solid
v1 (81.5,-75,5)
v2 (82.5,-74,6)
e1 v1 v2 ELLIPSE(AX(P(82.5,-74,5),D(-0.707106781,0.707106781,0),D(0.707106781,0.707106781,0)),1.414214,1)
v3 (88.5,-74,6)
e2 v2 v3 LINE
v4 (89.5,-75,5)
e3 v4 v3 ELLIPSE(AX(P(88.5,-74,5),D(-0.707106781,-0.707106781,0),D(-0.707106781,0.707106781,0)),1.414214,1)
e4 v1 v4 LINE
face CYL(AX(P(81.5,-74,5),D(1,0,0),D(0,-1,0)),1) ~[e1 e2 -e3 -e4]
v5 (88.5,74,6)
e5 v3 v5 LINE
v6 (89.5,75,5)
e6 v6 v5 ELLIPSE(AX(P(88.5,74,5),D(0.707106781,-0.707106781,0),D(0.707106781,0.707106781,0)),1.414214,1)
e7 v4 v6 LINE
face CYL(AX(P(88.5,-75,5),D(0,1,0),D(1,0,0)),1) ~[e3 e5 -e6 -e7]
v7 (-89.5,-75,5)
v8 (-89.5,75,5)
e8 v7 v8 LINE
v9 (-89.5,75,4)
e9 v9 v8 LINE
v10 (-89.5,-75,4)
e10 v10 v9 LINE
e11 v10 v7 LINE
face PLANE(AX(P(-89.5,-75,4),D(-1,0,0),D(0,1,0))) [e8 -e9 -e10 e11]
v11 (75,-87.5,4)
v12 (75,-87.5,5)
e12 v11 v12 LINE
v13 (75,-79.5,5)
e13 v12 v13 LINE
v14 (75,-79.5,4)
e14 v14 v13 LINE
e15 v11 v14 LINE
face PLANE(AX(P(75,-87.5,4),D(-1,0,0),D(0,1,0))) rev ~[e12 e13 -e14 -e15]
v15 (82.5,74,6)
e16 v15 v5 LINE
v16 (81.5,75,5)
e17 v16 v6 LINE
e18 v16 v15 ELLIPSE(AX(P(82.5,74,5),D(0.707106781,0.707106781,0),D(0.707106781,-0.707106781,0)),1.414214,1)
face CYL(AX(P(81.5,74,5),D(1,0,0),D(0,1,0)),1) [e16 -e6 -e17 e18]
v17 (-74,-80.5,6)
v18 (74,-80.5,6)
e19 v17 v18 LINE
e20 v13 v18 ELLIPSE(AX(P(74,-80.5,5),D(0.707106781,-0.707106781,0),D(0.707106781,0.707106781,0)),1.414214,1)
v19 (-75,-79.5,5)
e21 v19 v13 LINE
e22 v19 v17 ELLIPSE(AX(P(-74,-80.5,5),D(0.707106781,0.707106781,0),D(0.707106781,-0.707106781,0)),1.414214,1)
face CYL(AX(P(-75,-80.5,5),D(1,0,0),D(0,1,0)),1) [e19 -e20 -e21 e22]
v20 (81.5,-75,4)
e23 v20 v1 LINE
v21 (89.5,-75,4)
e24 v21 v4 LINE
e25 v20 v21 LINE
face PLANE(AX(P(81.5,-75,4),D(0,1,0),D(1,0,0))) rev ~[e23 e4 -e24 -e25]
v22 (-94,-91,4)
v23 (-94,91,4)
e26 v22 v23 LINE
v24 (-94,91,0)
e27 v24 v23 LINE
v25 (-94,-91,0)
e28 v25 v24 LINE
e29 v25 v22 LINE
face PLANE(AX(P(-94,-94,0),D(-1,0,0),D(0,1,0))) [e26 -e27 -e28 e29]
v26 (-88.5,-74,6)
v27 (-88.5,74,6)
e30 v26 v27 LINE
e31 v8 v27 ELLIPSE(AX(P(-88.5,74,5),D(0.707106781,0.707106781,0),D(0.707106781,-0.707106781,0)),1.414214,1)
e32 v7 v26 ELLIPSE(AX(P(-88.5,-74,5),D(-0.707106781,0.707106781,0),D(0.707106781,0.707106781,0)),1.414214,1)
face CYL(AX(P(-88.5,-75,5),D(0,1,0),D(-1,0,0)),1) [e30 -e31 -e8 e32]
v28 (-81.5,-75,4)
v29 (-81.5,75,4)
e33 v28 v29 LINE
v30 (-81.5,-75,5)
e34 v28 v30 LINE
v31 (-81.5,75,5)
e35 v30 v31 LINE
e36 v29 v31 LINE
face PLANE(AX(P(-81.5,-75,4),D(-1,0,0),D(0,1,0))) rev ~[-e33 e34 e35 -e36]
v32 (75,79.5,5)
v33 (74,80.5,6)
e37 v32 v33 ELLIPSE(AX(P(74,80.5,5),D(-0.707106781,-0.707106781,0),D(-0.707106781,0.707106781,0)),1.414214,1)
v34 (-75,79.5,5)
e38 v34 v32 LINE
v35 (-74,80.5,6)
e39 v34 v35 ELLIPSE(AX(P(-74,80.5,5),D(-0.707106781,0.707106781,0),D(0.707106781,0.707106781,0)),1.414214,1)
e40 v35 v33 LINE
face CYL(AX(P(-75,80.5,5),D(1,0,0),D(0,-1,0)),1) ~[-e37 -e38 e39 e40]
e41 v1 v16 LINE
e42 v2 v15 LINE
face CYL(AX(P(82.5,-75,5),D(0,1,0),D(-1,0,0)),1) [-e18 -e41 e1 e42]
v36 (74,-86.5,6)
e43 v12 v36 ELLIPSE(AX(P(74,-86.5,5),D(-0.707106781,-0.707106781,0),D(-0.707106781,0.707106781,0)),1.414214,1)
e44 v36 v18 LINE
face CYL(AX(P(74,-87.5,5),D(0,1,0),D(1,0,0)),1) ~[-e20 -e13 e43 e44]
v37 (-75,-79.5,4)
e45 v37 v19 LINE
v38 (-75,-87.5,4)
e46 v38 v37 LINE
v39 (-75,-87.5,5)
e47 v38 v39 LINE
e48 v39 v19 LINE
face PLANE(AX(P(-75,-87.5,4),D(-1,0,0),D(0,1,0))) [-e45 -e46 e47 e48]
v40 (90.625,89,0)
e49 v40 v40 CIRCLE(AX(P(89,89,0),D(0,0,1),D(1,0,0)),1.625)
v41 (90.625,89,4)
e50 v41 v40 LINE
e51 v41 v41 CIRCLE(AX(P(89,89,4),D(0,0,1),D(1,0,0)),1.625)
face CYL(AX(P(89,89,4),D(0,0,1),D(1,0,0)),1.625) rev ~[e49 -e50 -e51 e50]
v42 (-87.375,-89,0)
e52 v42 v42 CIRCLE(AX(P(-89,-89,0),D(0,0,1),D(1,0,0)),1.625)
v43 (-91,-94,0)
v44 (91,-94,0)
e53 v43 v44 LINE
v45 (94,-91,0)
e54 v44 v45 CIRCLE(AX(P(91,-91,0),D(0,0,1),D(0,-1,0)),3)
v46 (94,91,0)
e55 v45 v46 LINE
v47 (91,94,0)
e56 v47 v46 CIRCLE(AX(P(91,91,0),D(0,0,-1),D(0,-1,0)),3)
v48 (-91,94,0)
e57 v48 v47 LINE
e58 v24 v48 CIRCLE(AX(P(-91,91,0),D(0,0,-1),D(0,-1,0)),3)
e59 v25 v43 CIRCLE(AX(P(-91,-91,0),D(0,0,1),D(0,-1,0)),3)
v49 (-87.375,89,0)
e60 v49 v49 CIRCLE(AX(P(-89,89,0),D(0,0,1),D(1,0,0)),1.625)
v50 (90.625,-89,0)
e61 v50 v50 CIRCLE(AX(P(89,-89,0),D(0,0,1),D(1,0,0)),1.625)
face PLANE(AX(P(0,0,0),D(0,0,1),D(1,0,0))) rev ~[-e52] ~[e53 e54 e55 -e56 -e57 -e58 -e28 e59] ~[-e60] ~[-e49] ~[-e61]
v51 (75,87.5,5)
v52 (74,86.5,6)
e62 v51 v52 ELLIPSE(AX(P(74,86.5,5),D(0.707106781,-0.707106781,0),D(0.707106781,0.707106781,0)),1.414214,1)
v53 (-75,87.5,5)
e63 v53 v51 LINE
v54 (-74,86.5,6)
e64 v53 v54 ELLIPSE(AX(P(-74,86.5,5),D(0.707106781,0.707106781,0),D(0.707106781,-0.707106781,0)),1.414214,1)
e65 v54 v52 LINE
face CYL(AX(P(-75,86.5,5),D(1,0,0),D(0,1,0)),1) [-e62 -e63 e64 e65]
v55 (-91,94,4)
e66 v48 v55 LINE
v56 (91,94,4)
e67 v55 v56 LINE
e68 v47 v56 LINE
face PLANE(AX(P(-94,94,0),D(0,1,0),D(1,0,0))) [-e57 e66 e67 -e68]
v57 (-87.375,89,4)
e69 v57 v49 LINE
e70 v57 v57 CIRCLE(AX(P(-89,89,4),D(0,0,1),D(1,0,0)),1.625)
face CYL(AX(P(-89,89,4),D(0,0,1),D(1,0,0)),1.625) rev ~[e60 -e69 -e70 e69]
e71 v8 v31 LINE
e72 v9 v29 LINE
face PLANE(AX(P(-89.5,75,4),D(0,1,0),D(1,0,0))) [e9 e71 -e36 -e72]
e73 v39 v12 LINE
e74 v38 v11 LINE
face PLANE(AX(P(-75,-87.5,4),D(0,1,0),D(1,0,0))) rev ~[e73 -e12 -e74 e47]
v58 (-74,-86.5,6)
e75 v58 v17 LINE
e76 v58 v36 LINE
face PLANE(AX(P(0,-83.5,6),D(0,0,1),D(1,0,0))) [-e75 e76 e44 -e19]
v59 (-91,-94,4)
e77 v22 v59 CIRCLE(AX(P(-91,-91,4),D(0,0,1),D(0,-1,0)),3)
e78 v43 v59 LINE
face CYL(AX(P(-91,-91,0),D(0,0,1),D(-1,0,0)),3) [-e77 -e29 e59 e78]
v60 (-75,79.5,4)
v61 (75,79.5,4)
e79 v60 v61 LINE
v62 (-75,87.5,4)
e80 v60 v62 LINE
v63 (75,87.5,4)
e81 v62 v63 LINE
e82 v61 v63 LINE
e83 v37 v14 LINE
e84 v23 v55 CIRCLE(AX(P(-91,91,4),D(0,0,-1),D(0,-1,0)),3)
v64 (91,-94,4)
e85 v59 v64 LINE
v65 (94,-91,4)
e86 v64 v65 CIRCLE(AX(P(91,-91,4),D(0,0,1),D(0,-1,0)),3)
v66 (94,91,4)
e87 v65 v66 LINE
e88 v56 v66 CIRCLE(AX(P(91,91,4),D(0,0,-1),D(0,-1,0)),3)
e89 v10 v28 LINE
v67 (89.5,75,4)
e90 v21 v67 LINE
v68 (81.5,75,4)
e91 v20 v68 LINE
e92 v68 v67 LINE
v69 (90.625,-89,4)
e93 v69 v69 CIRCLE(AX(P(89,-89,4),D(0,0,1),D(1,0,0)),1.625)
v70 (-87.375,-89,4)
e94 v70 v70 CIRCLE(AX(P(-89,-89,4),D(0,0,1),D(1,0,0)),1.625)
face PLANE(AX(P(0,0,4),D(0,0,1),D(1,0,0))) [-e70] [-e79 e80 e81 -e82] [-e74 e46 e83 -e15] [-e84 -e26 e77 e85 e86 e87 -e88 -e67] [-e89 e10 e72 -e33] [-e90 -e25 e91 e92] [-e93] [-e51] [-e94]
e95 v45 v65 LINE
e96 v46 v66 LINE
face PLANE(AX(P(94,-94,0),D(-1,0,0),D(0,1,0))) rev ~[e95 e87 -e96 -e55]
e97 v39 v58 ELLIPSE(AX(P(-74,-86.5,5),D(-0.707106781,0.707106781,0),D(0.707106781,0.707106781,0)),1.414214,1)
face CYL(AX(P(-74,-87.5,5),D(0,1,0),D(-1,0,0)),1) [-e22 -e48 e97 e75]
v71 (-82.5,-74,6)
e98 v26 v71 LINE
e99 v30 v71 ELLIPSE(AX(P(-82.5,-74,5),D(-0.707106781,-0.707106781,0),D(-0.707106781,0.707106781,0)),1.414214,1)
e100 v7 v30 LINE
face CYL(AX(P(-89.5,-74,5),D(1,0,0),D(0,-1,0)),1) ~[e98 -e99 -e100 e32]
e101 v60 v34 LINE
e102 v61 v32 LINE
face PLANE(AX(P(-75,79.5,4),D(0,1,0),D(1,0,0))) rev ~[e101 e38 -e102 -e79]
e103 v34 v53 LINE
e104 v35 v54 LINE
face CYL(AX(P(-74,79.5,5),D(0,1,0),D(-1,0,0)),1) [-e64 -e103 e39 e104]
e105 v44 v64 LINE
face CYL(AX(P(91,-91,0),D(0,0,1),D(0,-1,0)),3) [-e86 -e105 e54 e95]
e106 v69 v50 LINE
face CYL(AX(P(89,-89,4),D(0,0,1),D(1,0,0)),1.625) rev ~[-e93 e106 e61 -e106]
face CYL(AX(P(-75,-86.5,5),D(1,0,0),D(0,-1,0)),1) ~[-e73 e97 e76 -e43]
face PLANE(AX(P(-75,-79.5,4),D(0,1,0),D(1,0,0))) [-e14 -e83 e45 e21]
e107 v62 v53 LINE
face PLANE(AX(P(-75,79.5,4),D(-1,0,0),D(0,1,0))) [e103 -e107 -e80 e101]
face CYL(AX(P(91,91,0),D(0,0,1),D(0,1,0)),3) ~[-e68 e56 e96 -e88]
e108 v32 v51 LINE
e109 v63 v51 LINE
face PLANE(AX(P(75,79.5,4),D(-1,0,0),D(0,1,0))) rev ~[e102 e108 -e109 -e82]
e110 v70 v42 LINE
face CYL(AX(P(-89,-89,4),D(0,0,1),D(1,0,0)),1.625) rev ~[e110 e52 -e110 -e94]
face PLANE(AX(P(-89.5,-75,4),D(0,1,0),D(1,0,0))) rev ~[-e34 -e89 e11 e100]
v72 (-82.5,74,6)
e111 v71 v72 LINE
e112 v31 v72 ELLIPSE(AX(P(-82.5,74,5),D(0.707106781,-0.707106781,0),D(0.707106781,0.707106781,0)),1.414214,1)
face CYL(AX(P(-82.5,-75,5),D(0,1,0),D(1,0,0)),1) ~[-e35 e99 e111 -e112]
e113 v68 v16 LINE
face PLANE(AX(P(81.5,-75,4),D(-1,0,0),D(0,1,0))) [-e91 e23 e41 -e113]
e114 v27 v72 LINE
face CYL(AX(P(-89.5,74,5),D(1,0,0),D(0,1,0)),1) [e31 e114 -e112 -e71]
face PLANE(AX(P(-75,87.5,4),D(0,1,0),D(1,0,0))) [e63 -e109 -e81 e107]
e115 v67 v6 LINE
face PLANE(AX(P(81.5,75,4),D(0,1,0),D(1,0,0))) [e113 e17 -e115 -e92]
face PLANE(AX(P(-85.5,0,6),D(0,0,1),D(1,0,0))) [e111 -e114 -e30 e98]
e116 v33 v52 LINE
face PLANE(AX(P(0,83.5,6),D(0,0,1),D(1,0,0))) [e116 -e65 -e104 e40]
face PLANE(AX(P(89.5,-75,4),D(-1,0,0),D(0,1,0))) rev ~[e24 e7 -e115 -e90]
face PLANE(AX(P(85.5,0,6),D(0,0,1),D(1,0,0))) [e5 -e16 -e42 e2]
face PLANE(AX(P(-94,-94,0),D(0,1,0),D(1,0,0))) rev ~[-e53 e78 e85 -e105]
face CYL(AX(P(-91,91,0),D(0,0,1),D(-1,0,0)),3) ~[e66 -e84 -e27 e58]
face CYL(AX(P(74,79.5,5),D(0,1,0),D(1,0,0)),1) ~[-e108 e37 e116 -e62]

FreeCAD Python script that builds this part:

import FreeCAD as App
import Part
import Sketcher
Q = App.Units.Quantity


def edges_at(feature, points):
    """Names of the edges that pass closest to the given points."""
    edges = feature.Shape.Edges
    near = lambda p: min(range(len(edges)), key=lambda i: edges[i].distToShape(Part.Vertex(*p))[0])
    return sorted({f"Edge{near(p) + 1}" for p in points})


def add_polygon(sketch, points):
    """Adds a closed chain of lines whose ends are joined by coincident constraints."""
    first, n = sketch.GeometryCount, len(points)
    for a, b in zip(points, points[1:] + points[:1]):
        sketch.addGeometry(Part.LineSegment(App.Vector(*a, 0), App.Vector(*b, 0)), False)
    for i in range(n):
        sketch.addConstraint(Sketcher.Constraint("Coincident", first + i, 2, first + (i + 1) % n, 1))

doc = App.newDocument("Part")
params = doc.addObject("Spreadsheet::Sheet", "Params")
for row, (alias, value) in enumerate([
    ("sketch1_width", "188 mm"),
    ("pad1_length", "4 mm"),
    ("sketch2_diameter", "3.25 mm"),
    ("fillet_radius", "3 mm"),
    ("sketch3_width", "150 mm"),
    ("sketch3_width2", "8 mm"),
    ("pad2_length", "2 mm"),
    ("fillet2_radius", "1 mm"),
], start=1):
    params.set(f"A{row}", alias)
    params.set(f"B{row}", "=" + value)
    params.setAlias(f"B{row}", alias)

body = doc.addObject("PartDesign::Body", "Body")

# Sketch on XY plane
sketch1 = body.newObject("Sketcher::SketchObject", "Sketch")
sketch1.AttachmentSupport = (doc.getObject("XY_Plane"), [""])
sketch1.MapMode = "FlatFace"
add_polygon(sketch1, [(-94, 94), (-94, -94), (94, -94), (94, 94)])  # lines 0-3
sketch1.addConstraint([
    Sketcher.Constraint("Vertical", 0),
    Sketcher.Constraint("Horizontal", 1),
    Sketcher.Constraint("Vertical", 2),
    Sketcher.Constraint("Horizontal", 3),
    Sketcher.Constraint("Symmetric", 0, 2, 2, 2, -1, 1),
    Sketcher.Constraint("Equal", 3, 0),
    Sketcher.Constraint("DistanceX", 1, 1, 1, 2, Q("188 mm")),
])
sketch1.setExpression("Constraints[10]", "Params.sketch1_width")
pad1 = body.newObject("PartDesign::Pad", "Pad")
pad1.Profile = sketch1
pad1.setExpression("Length", "Params.pad1_length")

# Sketch on XY plane
sketch2 = body.newObject("Sketcher::SketchObject", "Sketch001")
sketch2.AttachmentSupport = (doc.getObject("XY_Plane"), [""])
sketch2.MapMode = "FlatFace"
sketch2.AttachmentOffset = App.Placement(App.Vector(0, 0, 4), App.Rotation())
sketch2.addGeometry([
    Part.Circle(App.Vector(-89, 89, 0), App.Vector(0, 0, 1), 1.6),
    Part.Circle(App.Vector(89, 89, 0), App.Vector(0, 0, 1), 1.6),
    Part.Circle(App.Vector(89, -89, 0), App.Vector(0, 0, 1), 1.6),
    Part.Circle(App.Vector(-89, -89, 0), App.Vector(0, 0, 1), 1.6),
], False)
sketch2.addConstraint([
    Sketcher.Constraint("Equal", 0, 1),
    Sketcher.Constraint("Equal", 1, 2),
    Sketcher.Constraint("Equal", 2, 3),
    Sketcher.Constraint("Symmetric", 0, 3, 2, 3, -1, 1),
    Sketcher.Constraint("Symmetric", 1, 3, 3, 3, -1, 1),
    Sketcher.Constraint("Symmetric", 0, 3, 1, 3, -2),
    Sketcher.Constraint("Diameter", 0, Q("3.25 mm")),
    Sketcher.Constraint("DistanceX", 0, 3, -1, 1, Q("89 mm")),
    Sketcher.Constraint("DistanceY", -1, 1, 0, 3, Q("89 mm")),
])
sketch2.setExpression("Constraints[6]", "Params.sketch2_diameter")
pocket1 = body.newObject("PartDesign::Pocket", "Pocket")
pocket1.Profile = sketch2
pocket1.Type = "ThroughAll"
doc.recompute()

fillet = body.newObject("PartDesign::Fillet", "Fillet")
fillet.Base = (pocket1, edges_at(pocket1, [
    (-94, 94, 2),
    (94, 94, 2),
    (-94, -94, 2),
    (94, -94, 2),
]))
fillet.setExpression("Radius", "Params.fillet_radius")

# Sketch on XY plane
sketch3 = body.newObject("Sketcher::SketchObject", "Sketch002")
sketch3.AttachmentSupport = (doc.getObject("XY_Plane"), [""])
sketch3.MapMode = "FlatFace"
sketch3.AttachmentOffset = App.Placement(App.Vector(0, 0, 4), App.Rotation())
add_polygon(sketch3, [(-75, -80), (-75, -88), (75, -88), (75, -80)])  # lines 0-3
add_polygon(sketch3, [(-75, 88), (-75, 80), (75, 80), (75, 88)])  # lines 4-7
add_polygon(sketch3, [(-90, 75), (-90, -75), (-82, -75), (-82, 75)])  # lines 8-11
add_polygon(sketch3, [(82, 75), (82, -75), (90, -75), (90, 75)])  # lines 12-15
sketch3.addConstraint([
    Sketcher.Constraint("Vertical", 0),
    Sketcher.Constraint("Horizontal", 1),
    Sketcher.Constraint("Vertical", 2),
    Sketcher.Constraint("Horizontal", 3),
    Sketcher.Constraint("Vertical", 4),
    Sketcher.Constraint("Horizontal", 5),
    Sketcher.Constraint("Vertical", 6),
    Sketcher.Constraint("Horizontal", 7),
    Sketcher.Constraint("Vertical", 8),
    Sketcher.Constraint("Horizontal", 9),
    Sketcher.Constraint("Vertical", 10),
    Sketcher.Constraint("Horizontal", 11),
    Sketcher.Constraint("Vertical", 12),
    Sketcher.Constraint("Horizontal", 13),
    Sketcher.Constraint("Vertical", 14),
    Sketcher.Constraint("Horizontal", 15),
    Sketcher.Constraint("Symmetric", 2, 2, 4, 2, -1, 1),
    Sketcher.Constraint("Symmetric", 0, 2, 6, 2, -1, 1),
    Sketcher.Constraint("Symmetric", 10, 2, 12, 2, -1, 1),
    Sketcher.Constraint("Symmetric", 8, 2, 14, 2, -1, 1),
    Sketcher.Constraint("Horizontal", 9, 2, 12, 2),
    Sketcher.Constraint("Vertical", 3, 2, 4, 2),
    Sketcher.Constraint("Equal", 15, 0),
    Sketcher.Constraint("Equal", 7, 8),
    Sketcher.Constraint("DistanceX", 1, 1, 1, 2, Q("150 mm")),
    Sketcher.Constraint("DistanceX", 9, 1, 9, 2, Q("8 mm")),
    Sketcher.Constraint("DistanceY", 3, 2, 4, 2, Q("159 mm")),
    Sketcher.Constraint("DistanceX", 8, 2, -1, 1, Q("89.5 mm")),
])
sketch3.setExpression("Constraints[40]", "Params.sketch3_width")
sketch3.setExpression("Constraints[41]", "Params.sketch3_width2")
pad2 = body.newObject("PartDesign::Pad", "Pad001")
pad2.Profile = sketch3
pad2.setExpression("Length", "Params.pad2_length")
doc.recompute()

fillet2 = body.newObject("PartDesign::Fillet", "Fillet001")
fillet2.Base = (pad2, edges_at(pad2, [
    (-85.5, 75, 6),
    (-81.5, 0, 6),
    (-85.5, -75, 6),
    (-89.5, 0, 6),
    (0, -79.5, 6),
    (75, -83.5, 6),
    (0, -87.5, 6),
    (-75, -83.5, 6),
    (85.5, 75, 6),
    (89.5, 0, 6),
    (85.5, -75, 6),
    (81.5, 0, 6),
    (0, 87.5, 6),
    (75, 83.5, 6),
    (0, 79.5, 6),
    (-75, 83.5, 6),
]))
fillet2.setExpression("Radius", "Params.fillet2_radius")

doc.recompute()
